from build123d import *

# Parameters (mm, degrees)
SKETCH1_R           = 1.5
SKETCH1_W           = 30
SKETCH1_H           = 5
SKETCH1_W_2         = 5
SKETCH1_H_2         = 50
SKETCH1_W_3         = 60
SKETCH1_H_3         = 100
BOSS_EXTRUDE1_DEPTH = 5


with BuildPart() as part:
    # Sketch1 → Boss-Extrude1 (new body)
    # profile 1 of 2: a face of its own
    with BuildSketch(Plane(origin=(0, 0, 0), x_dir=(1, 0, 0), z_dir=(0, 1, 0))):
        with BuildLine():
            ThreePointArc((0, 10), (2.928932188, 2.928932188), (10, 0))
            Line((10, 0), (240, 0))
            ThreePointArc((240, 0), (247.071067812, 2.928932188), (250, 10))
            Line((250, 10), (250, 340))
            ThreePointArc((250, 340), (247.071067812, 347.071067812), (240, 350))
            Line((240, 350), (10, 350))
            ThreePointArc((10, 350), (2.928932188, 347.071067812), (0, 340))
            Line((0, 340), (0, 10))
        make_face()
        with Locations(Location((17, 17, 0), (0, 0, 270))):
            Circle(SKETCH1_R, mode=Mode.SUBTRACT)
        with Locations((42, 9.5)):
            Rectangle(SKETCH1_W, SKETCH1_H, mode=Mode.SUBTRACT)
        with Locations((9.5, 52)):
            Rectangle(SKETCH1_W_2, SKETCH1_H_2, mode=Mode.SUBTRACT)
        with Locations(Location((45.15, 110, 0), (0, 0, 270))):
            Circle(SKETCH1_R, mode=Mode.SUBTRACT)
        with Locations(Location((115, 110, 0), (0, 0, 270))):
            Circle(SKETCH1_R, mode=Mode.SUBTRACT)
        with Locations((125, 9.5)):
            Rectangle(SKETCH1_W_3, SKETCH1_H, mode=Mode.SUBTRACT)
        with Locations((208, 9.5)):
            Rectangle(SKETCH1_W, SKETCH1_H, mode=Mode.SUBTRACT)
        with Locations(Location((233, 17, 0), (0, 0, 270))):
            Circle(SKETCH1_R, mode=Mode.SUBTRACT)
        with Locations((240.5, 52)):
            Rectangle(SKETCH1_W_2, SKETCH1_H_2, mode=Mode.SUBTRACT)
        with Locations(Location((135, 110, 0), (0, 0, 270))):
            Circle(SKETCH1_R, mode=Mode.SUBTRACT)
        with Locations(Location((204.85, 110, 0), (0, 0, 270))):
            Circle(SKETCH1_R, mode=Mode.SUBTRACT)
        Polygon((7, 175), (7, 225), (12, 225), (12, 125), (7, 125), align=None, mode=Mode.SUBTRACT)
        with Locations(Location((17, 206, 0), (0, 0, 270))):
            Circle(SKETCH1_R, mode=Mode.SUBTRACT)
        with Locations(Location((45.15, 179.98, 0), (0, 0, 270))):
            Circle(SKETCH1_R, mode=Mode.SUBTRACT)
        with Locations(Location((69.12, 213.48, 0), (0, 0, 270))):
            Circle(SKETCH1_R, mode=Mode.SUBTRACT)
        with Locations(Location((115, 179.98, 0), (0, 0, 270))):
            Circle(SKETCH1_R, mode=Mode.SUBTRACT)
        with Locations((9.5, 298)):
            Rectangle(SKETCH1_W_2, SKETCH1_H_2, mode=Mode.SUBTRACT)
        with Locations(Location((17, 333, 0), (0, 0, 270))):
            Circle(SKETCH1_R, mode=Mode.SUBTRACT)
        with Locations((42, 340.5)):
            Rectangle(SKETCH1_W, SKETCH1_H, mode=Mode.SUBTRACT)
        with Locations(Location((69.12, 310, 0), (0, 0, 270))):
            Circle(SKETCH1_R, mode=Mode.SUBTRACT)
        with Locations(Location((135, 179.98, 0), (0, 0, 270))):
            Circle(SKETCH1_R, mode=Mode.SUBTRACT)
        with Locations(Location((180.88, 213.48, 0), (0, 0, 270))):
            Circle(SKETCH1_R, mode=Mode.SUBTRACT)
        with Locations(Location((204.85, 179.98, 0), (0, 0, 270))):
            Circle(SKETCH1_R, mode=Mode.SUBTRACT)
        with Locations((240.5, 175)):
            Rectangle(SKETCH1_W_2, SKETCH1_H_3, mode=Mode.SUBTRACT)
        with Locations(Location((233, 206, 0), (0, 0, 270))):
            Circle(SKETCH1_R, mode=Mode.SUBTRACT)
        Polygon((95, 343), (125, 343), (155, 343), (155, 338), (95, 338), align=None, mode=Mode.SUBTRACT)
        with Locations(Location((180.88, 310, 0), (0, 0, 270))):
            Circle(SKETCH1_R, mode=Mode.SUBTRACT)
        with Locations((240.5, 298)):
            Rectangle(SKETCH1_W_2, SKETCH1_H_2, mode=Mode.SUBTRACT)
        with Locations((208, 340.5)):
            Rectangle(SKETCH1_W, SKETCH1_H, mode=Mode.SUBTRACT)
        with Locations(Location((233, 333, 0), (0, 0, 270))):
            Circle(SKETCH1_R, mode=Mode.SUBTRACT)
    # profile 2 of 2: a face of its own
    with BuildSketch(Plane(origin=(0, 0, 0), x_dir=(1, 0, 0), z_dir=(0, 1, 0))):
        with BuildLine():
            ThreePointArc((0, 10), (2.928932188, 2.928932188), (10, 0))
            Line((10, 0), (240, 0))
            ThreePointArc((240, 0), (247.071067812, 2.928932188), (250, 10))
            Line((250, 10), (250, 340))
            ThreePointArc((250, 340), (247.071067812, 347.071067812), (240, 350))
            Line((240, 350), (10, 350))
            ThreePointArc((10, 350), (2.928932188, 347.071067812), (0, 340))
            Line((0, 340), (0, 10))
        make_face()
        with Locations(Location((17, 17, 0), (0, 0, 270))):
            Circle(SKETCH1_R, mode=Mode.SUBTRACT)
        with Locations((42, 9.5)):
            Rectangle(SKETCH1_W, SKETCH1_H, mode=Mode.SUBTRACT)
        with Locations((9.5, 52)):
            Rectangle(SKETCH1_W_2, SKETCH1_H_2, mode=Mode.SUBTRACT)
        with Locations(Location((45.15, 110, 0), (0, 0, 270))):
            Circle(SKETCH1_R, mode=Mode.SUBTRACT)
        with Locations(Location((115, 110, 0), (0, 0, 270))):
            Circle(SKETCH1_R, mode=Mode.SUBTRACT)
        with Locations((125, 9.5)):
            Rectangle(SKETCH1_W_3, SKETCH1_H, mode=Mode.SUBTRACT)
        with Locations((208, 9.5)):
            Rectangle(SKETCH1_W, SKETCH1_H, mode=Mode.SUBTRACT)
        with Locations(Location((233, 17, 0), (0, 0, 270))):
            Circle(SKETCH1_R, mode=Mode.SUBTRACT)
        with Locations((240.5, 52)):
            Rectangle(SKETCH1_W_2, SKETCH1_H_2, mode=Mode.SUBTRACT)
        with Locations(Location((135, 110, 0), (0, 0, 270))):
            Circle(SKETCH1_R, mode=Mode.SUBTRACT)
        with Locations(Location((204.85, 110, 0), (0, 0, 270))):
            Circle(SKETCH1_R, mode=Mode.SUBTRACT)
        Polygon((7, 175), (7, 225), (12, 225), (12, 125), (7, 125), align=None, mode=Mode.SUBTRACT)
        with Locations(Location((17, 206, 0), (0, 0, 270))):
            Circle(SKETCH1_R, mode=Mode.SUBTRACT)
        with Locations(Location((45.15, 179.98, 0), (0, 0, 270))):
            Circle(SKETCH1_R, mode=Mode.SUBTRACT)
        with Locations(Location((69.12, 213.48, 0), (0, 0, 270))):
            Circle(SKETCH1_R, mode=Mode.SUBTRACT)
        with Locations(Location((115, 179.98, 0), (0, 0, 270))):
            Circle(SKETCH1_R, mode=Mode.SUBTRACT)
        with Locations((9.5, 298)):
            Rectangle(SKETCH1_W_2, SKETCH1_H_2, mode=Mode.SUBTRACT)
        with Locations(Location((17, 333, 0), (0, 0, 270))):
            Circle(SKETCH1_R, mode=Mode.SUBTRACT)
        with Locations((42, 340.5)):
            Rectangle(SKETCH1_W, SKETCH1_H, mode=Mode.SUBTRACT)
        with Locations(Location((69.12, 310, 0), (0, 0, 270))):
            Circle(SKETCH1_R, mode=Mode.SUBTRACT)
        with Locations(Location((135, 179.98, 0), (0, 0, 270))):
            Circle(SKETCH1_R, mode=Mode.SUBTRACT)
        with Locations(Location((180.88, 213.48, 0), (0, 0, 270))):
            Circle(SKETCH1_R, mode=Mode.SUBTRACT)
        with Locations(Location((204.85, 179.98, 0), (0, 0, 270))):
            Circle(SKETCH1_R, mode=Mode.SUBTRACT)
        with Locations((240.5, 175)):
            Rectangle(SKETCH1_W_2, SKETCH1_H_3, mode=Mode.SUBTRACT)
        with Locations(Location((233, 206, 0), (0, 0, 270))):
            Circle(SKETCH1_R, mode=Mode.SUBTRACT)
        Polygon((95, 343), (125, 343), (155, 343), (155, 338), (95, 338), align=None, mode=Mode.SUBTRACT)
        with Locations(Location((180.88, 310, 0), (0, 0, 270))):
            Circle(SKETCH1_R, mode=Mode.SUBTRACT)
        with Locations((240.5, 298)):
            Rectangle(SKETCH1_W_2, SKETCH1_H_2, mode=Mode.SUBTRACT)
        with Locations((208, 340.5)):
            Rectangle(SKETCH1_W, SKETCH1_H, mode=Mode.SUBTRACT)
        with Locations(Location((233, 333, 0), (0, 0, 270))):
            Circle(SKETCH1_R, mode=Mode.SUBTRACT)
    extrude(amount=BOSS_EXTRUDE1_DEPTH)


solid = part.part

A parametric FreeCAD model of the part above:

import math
import FreeCAD as App
import Part
import Sketcher
from FreeCAD import Vector
Q = App.Units.Quantity


def add_polygon(sketch, points):
    """Adds a closed chain of lines whose ends are joined by coincident constraints."""
    first, n = sketch.GeometryCount, len(points)
    for a, b in zip(points, points[1:] + points[:1]):
        sketch.addGeometry(Part.LineSegment(App.Vector(*a, 0), App.Vector(*b, 0)), False)
    for i in range(n):
        sketch.addConstraint(Sketcher.Constraint("Coincident", first + i, 2, first + (i + 1) % n, 1))

doc = App.newDocument("Part")
body = doc.addObject("PartDesign::Body", "Body")

# Sketch on XZ plane
sketch1 = body.newObject("Sketcher::SketchObject", "Sketch")
sketch1.AttachmentSupport = (doc.getObject("XZ_Plane"), [""])
sketch1.MapMode = "FlatFace"
sketch1.addGeometry(Part.ArcOfCircle(Part.Circle(Vector(10, -10, 0), Vector(0, 0, 1), 10), math.radians(90), math.radians(180)), False)  # 0
sketch1.addGeometry(Part.LineSegment(Vector(10, 0, 0), Vector(240, 0, 0)), False)  # 1
sketch1.addGeometry(Part.ArcOfCircle(Part.Circle(Vector(240, -10, 0), Vector(0, 0, 1), 10), math.radians(0), math.radians(90)), False)  # 2
sketch1.addGeometry(Part.LineSegment(Vector(250, -10, 0), Vector(250, -340, 0)), False)  # 3
sketch1.addGeometry(Part.ArcOfCircle(Part.Circle(Vector(240, -340, 0), Vector(0, 0, 1), 10), math.radians(-90), math.radians(0)), False)  # 4
sketch1.addGeometry(Part.LineSegment(Vector(240, -350, 0), Vector(10, -350, 0)), False)  # 5
sketch1.addGeometry(Part.ArcOfCircle(Part.Circle(Vector(10, -340, 0), Vector(0, 0, 1), 10), math.radians(180), math.radians(270)), False)  # 6
sketch1.addGeometry(Part.LineSegment(Vector(0, -340, 0), Vector(0, -10, 0)), False)  # 7
sketch1.addGeometry(Part.Circle(Vector(17, -17, 0), Vector(0, 0, 1), 1.5), False)  # 8
add_polygon(sketch1, [(57, -7), (27, -7), (27, -12), (57, -12)])  # lines 9-12
add_polygon(sketch1, [(12, -27), (7, -27), (7, -77), (12, -77)])  # lines 13-16
sketch1.addGeometry(Part.Circle(Vector(45.1, -110, 0), Vector(0, 0, 1), 1.5), False)  # 17
sketch1.addGeometry(Part.Circle(Vector(115, -110, 0), Vector(0, 0, 1), 1.5), False)  # 18
add_polygon(sketch1, [(155, -7), (95, -7), (95, -12), (155, -12)])  # lines 19-22
add_polygon(sketch1, [(223, -7), (193, -7), (193, -12), (223, -12)])  # lines 23-26
sketch1.addGeometry(Part.Circle(Vector(233, -17, 0), Vector(0, 0, 1), 1.5), False)  # 27
add_polygon(sketch1, [(243, -27), (238, -27), (238, -77), (243, -77)])  # lines 28-31
sketch1.addGeometry(Part.Circle(Vector(135, -110, 0), Vector(0, 0, 1), 1.5), False)  # 32
sketch1.addGeometry(Part.Circle(Vector(204.8, -110, 0), Vector(0, 0, 1), 1.5), False)  # 33
add_polygon(sketch1, [(7, -125), (7, -225), (12, -225), (12, -125)])  # lines 34-37
sketch1.addGeometry(Part.Circle(Vector(17, -206, 0), Vector(0, 0, 1), 1.5), False)  # 38
sketch1.addGeometry(Part.Circle(Vector(45.1, -180, 0), Vector(0, 0, 1), 1.5), False)  # 39
sketch1.addGeometry(Part.Circle(Vector(69.1, -213.5, 0), Vector(0, 0, 1), 1.5), False)  # 40
sketch1.addGeometry(Part.Circle(Vector(115, -180, 0), Vector(0, 0, 1), 1.5), False)  # 41
add_polygon(sketch1, [(12, -273), (7, -273), (7, -323), (12, -323)])  # lines 42-45
sketch1.addGeometry(Part.Circle(Vector(17, -333, 0), Vector(0, 0, 1), 1.5), False)  # 46
add_polygon(sketch1, [(57, -338), (27, -338), (27, -343), (57, -343)])  # lines 47-50
sketch1.addGeometry(Part.Circle(Vector(69.1, -310, 0), Vector(0, 0, 1), 1.5), False)  # 51
sketch1.addGeometry(Part.Circle(Vector(135, -180, 0), Vector(0, 0, 1), 1.5), False)  # 52
sketch1.addGeometry(Part.Circle(Vector(180.9, -213.5, 0), Vector(0, 0, 1), 1.5), False)  # 53
sketch1.addGeometry(Part.Circle(Vector(204.8, -180, 0), Vector(0, 0, 1), 1.5), False)  # 54
add_polygon(sketch1, [(243, -125), (238, -125), (238, -225), (243, -225)])  # lines 55-58
sketch1.addGeometry(Part.Circle(Vector(233, -206, 0), Vector(0, 0, 1), 1.5), False)  # 59
add_polygon(sketch1, [(95, -338), (95, -343), (155, -343), (155, -338)])  # lines 60-63
sketch1.addGeometry(Part.Circle(Vector(180.9, -310, 0), Vector(0, 0, 1), 1.5), False)  # 64
add_polygon(sketch1, [(243, -273), (238, -273), (238, -323), (243, -323)])  # lines 65-68
add_polygon(sketch1, [(223, -338), (193, -338), (193, -343), (223, -343)])  # lines 69-72
sketch1.addGeometry(Part.Circle(Vector(233, -333, 0), Vector(0, 0, 1), 1.5), False)  # 73
sketch1.addConstraint([
    Sketcher.Constraint("Tangent", 0, 1, 1, 1),
    Sketcher.Constraint("Tangent", 1, 2, 2, 2),
    Sketcher.Constraint("Tangent", 2, 1, 3, 1),
    Sketcher.Constraint("Tangent", 3, 2, 4, 2),
    Sketcher.Constraint("Tangent", 4, 1, 5, 1),
    Sketcher.Constraint("Tangent", 5, 2, 6, 2),
    Sketcher.Constraint("Tangent", 6, 1, 7, 1),
    Sketcher.Constraint("Tangent", 7, 2, 0, 2),
    Sketcher.Constraint("Horizontal", 1),
    Sketcher.Constraint("Vertical", 3),
    Sketcher.Constraint("Horizontal", 5),
    Sketcher.Constraint("Vertical", 7),
    Sketcher.Constraint("Horizontal", 9),
    Sketcher.Constraint("Vertical", 10),
    Sketcher.Constraint("Horizontal", 11),
    Sketcher.Constraint("Vertical", 12),
    Sketcher.Constraint("Horizontal", 13),
    Sketcher.Constraint("Vertical", 14),
    Sketcher.Constraint("Horizontal", 15),
    Sketcher.Constraint("Vertical", 16),
    Sketcher.Constraint("Horizontal", 19),
    Sketcher.Constraint("Vertical", 20),
    Sketcher.Constraint("Horizontal", 21),
    Sketcher.Constraint("Vertical", 22),
    Sketcher.Constraint("Horizontal", 23),
    Sketcher.Constraint("Vertical", 24),
    Sketcher.Constraint("Horizontal", 25),
    Sketcher.Constraint("Vertical", 26),
    Sketcher.Constraint("Horizontal", 28),
    Sketcher.Constraint("Vertical", 29),
    Sketcher.Constraint("Horizontal", 30),
    Sketcher.Constraint("Vertical", 31),
    Sketcher.Constraint("Vertical", 34),
    Sketcher.Constraint("Horizontal", 35),
    Sketcher.Constraint("Vertical", 36),
    Sketcher.Constraint("Horizontal", 37),
    Sketcher.Constraint("Horizontal", 42),
    Sketcher.Constraint("Vertical", 43),
    Sketcher.Constraint("Horizontal", 44),
    Sketcher.Constraint("Vertical", 45),
    Sketcher.Constraint("Horizontal", 47),
    Sketcher.Constraint("Vertical", 48),
    Sketcher.Constraint("Horizontal", 49),
    Sketcher.Constraint("Vertical", 50),
    Sketcher.Constraint("Horizontal", 55),
    Sketcher.Constraint("Vertical", 56),
    Sketcher.Constraint("Horizontal", 57),
    Sketcher.Constraint("Vertical", 58),
    Sketcher.Constraint("Vertical", 60),
    Sketcher.Constraint("Horizontal", 61),
    Sketcher.Constraint("Vertical", 62),
    Sketcher.Constraint("Horizontal", 63),
    Sketcher.Constraint("Horizontal", 65),
    Sketcher.Constraint("Vertical", 66),
    Sketcher.Constraint("Horizontal", 67),
    Sketcher.Constraint("Vertical", 68),
    Sketcher.Constraint("Horizontal", 69),
    Sketcher.Constraint("Vertical", 70),
    Sketcher.Constraint("Horizontal", 71),
    Sketcher.Constraint("Vertical", 72),
    Sketcher.Constraint("Equal", 0, 2),
    Sketcher.Constraint("Equal", 2, 4),
    Sketcher.Constraint("Equal", 4, 6),
    Sketcher.Constraint("Equal", 8, 17),
    Sketcher.Constraint("Equal", 17, 18),
    Sketcher.Constraint("Equal", 18, 27),
    Sketcher.Constraint("Equal", 27, 32),
    Sketcher.Constraint("Equal", 32, 33),
    Sketcher.Constraint("Equal", 33, 38),
    Sketcher.Constraint("Equal", 38, 39),
    Sketcher.Constraint("Equal", 39, 40),
    Sketcher.Constraint("Equal", 40, 41),
    Sketcher.Constraint("Equal", 41, 46),
    Sketcher.Constraint("Equal", 46, 51),
    Sketcher.Constraint("Equal", 51, 52),
    Sketcher.Constraint("Equal", 52, 53),
    Sketcher.Constraint("Equal", 53, 54),
    Sketcher.Constraint("Equal", 54, 59),
    Sketcher.Constraint("Equal", 59, 64),
    Sketcher.Constraint("Equal", 64, 73),
    Sketcher.Constraint("PointOnObject", 0, 1, -1),
    Sketcher.Constraint("PointOnObject", 6, 1, -2),
    Sketcher.Constraint("Horizontal", 17, 3, 18, 3),
    Sketcher.Constraint("Horizontal", 8, 3, 27, 3),
    Sketcher.Constraint("Horizontal", 18, 3, 32, 3),
    Sketcher.Constraint("Horizontal", 32, 3, 33, 3),
    Sketcher.Constraint("Horizontal", 39, 3, 41, 3),
    Sketcher.Constraint("Horizontal", 41, 3, 52, 3),
    Sketcher.Constraint("Horizontal", 40, 3, 53, 3),
    Sketcher.Constraint("Horizontal", 52, 3, 54, 3),
    Sketcher.Constraint("Horizontal", 38, 3, 59, 3),
    Sketcher.Constraint("Horizontal", 51, 3, 64, 3),
    Sketcher.Constraint("Horizontal", 46, 3, 73, 3),
    Sketcher.Constraint("Horizontal", 12, 2, 19, 2),
    Sketcher.Constraint("Horizontal", 11, 2, 20, 2),
    Sketcher.Constraint("Horizontal", 22, 2, 23, 2),
    Sketcher.Constraint("Horizontal", 21, 2, 24, 2),
    Sketcher.Constraint("Horizontal", 16, 2, 28, 2),
    Sketcher.Constraint("Horizontal", 15, 2, 29, 2),
    Sketcher.Constraint("Horizontal", 37, 2, 55, 2),
    Sketcher.Constraint("Horizontal", 35, 2, 56, 2),
    Sketcher.Constraint("Horizontal", 49, 2, 60, 2),
    Sketcher.Constraint("Horizontal", 50, 2, 62, 2),
    Sketcher.Constraint("Horizontal", 45, 2, 65, 2),
    Sketcher.Constraint("Horizontal", 44, 2, 66, 2),
    Sketcher.Constraint("Horizontal", 63, 2, 69, 2),
    Sketcher.Constraint("Horizontal", 61, 2, 70, 2),
    Sketcher.Constraint("Vertical", 8, 3, 38, 3),
    Sketcher.Constraint("Vertical", 17, 3, 39, 3),
    Sketcher.Constraint("Vertical", 18, 3, 41, 3),
    Sketcher.Constraint("Vertical", 38, 3, 46, 3),
    Sketcher.Constraint("Vertical", 40, 3, 51, 3),
    Sketcher.Constraint("Vertical", 32, 3, 52, 3),
    Sketcher.Constraint("Vertical", 33, 3, 54, 3),
    Sketcher.Constraint("Vertical", 27, 3, 59, 3),
    Sketcher.Constraint("Vertical", 53, 3, 64, 3),
    Sketcher.Constraint("Vertical", 59, 3, 73, 3),
    Sketcher.Constraint("Vertical", 14, 2, 34, 2),
    Sketcher.Constraint("Vertical", 16, 2, 35, 2),
    Sketcher.Constraint("Vertical", 37, 2, 42, 2),
    Sketcher.Constraint("Vertical", 36, 2, 44, 2),
    Sketcher.Constraint("Vertical", 10, 2, 47, 2),
    Sketcher.Constraint("Vertical", 12, 2, 49, 2),
    Sketcher.Constraint("Vertical", 29, 2, 55, 2),
    Sketcher.Constraint("Vertical", 31, 2, 57, 2),
    Sketcher.Constraint("Vertical", 20, 2, 60, 2),
    Sketcher.Constraint("Vertical", 22, 2, 61, 2),
    Sketcher.Constraint("Vertical", 56, 2, 65, 2),
    Sketcher.Constraint("Vertical", 58, 2, 67, 2),
    Sketcher.Constraint("Vertical", 24, 2, 69, 2),
    Sketcher.Constraint("Vertical", 26, 2, 71, 2),
    Sketcher.Constraint("Equal", 11, 23),
    Sketcher.Constraint("Equal", 15, 28),
    Sketcher.Constraint("Equal", 67, 10),
    Sketcher.Constraint("Equal", 31, 43),
    Sketcher.Constraint("Equal", 26, 48),
    Sketcher.Constraint("Diameter", 8, Q("3 mm")),
    Sketcher.Constraint("Radius", 0, Q("10 mm")),
    Sketcher.Constraint("DistanceX", 1, 1, 1, 2, Q("230 mm")),
    Sketcher.Constraint("DistanceX", 9, 2, 9, 1, Q("30 mm")),
    Sketcher.Constraint("DistanceX", 13, 2, 13, 1, Q("5 mm")),
    Sketcher.Constraint("DistanceX", 19, 2, 19, 1, Q("60 mm")),
    Sketcher.Constraint("DistanceY", 3, 2, 3, 1, Q("330 mm")),
    Sketcher.Constraint("DistanceY", 14, 2, 14, 1, Q("50 mm")),
    Sketcher.Constraint("DistanceY", 34, 2, 34, 1, Q("100 mm")),
    Sketcher.Constraint("DistanceX", -1, 1, 8, 3, Q("17 mm")),
    Sketcher.Constraint("DistanceY", 8, 3, -1, 1, Q("17 mm")),
    Sketcher.Constraint("DistanceY", 17, 3, -1, 1, Q("110 mm")),
    Sketcher.Constraint("DistanceX", -1, 1, 18, 3, Q("115 mm")),
    Sketcher.Constraint("DistanceX", -1, 1, 27, 3, Q("233 mm")),
    Sketcher.Constraint("DistanceX", -1, 1, 32, 3, Q("135 mm")),
    Sketcher.Constraint("DistanceY", 38, 3, -1, 1, Q("206 mm")),
    Sketcher.Constraint("DistanceY", 46, 3, -1, 1, Q("333 mm")),
    Sketcher.Constraint("DistanceY", 51, 3, -1, 1, Q("310 mm")),
    Sketcher.Constraint("DistanceX", -1, 1, 9, 2, Q("27 mm")),
    Sketcher.Constraint("DistanceY", 9, 2, -1, 1, Q("7 mm")),
    Sketcher.Constraint("DistanceX", -1, 1, 13, 2, Q("7 mm")),
    Sketcher.Constraint("DistanceY", 13, 2, -1, 1, Q("27 mm")),
    Sketcher.Constraint("DistanceX", -1, 1, 19, 2, Q("95 mm")),
    Sketcher.Constraint("DistanceX", -1, 1, 23, 2, Q("193 mm")),
    Sketcher.Constraint("DistanceX", -1, 1, 28, 2, Q("238 mm")),
    Sketcher.Constraint("DistanceY", 34, 2, -1, 1, Q("225 mm")),
    Sketcher.Constraint("DistanceY", 42, 2, -1, 1, Q("273 mm")),
    Sketcher.Constraint("DistanceY", 47, 2, -1, 1, Q("338 mm")),
    Sketcher.Constraint("DistanceX", -1, 1, 17, 3, Q("45.15 mm")),
    Sketcher.Constraint("DistanceX", -1, 1, 33, 3, Q("204.85 mm")),
    Sketcher.Constraint("DistanceY", 39, 3, -1, 1, Q("179.98 mm")),
    Sketcher.Constraint("DistanceX", -1, 1, 40, 3, Q("69.12 mm")),
    Sketcher.Constraint("DistanceY", 40, 3, -1, 1, Q("213.48 mm")),
    Sketcher.Constraint("DistanceX", -1, 1, 53, 3, Q("180.88 mm")),
])
pad1 = body.newObject("PartDesign::Pad", "Pad")
pad1.Profile = sketch1
pad1.Length = 5
pad1.Reversed = True

doc.recompute()
